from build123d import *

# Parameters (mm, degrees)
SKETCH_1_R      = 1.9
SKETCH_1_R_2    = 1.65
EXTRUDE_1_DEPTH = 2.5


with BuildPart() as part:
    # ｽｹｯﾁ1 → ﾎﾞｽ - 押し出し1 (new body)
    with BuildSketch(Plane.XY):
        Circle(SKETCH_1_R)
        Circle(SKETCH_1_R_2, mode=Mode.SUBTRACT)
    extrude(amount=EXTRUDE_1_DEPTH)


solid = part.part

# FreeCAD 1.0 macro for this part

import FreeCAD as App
import Part
import Sketcher

V = App.Vector
Q = App.Units.Quantity

doc = App.newDocument("Part")
body = doc.addObject("PartDesign::Body", "Body")

sketch1 = body.newObject("Sketcher::SketchObject", "Sketch")
sketch1.AttachmentSupport = (doc.getObject("XY_Plane"), [""])
sketch1.MapMode = "FlatFace"
sketch1.addGeometry(Part.Circle(V(0, 0, 0), V(0, 0, 1), 1.9), False)
sketch1.addGeometry(Part.Circle(V(0, 0, 0), V(0, 0, 1), 1.6), False)
sketch1.addConstraint(Sketcher.Constraint("Coincident", 0, 3, -1, 1))
sketch1.addConstraint(Sketcher.Constraint("Coincident", 1, 3, -1, 1))
sketch1.addConstraint(Sketcher.Constraint("Diameter", 0, Q("3.8 mm")))
sketch1.addConstraint(Sketcher.Constraint("Diameter", 1, Q("3.3 mm")))
pad1 = body.newObject("PartDesign::Pad", "Pad")
pad1.Profile = sketch1
pad1.Length = 2.5

doc.recompute()
